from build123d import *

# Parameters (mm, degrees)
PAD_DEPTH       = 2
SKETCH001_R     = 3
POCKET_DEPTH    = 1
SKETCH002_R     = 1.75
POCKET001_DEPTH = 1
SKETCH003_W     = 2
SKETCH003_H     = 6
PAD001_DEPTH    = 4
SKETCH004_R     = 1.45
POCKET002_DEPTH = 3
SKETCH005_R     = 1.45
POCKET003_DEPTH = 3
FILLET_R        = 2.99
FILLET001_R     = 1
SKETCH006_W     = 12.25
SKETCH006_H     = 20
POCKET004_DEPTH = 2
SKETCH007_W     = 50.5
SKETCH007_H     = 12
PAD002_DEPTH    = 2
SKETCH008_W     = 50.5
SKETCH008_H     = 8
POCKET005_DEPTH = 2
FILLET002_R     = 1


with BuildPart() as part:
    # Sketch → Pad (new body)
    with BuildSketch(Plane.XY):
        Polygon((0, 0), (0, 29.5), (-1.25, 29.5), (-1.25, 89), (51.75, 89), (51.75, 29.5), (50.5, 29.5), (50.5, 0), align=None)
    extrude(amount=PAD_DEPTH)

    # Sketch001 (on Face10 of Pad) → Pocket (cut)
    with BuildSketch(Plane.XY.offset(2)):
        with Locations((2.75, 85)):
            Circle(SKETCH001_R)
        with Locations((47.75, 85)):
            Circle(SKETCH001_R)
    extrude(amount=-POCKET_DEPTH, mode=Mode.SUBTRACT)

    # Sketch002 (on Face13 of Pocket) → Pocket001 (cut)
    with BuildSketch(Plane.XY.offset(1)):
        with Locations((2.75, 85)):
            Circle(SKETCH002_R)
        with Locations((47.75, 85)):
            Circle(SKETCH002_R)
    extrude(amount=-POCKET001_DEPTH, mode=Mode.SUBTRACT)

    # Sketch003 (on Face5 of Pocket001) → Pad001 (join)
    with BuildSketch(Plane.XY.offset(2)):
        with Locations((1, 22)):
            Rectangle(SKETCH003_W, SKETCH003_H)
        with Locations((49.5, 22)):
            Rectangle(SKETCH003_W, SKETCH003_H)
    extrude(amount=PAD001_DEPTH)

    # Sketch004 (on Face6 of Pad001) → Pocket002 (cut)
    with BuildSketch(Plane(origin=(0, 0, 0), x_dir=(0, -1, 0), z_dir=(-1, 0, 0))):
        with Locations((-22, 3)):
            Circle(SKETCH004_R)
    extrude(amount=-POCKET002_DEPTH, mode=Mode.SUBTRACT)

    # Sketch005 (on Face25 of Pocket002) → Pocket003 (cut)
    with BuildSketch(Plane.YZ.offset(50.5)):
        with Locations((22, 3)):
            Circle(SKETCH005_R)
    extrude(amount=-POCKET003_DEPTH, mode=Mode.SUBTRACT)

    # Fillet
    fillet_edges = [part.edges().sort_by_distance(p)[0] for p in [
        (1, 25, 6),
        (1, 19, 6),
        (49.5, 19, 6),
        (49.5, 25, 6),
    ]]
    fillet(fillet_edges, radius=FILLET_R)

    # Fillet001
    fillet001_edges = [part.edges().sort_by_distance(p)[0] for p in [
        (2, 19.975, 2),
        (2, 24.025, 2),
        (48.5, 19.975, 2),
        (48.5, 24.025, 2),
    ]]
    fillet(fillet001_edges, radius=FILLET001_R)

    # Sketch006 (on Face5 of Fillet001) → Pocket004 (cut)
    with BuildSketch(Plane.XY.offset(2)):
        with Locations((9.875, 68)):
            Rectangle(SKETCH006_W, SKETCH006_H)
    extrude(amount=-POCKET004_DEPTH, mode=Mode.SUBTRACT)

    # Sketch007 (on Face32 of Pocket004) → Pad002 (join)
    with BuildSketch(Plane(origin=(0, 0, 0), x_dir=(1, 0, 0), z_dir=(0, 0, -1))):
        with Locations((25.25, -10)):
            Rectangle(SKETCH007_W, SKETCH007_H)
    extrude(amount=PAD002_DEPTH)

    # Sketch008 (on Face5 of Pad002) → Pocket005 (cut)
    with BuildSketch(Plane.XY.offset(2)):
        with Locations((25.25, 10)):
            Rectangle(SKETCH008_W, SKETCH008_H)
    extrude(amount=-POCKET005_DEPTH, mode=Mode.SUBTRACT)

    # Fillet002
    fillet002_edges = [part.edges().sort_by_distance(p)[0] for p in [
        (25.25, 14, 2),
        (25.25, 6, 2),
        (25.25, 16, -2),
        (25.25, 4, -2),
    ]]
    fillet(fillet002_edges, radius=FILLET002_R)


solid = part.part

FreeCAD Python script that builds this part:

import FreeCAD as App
import Part
import Sketcher
Q = App.Units.Quantity


def edges_at(feature, points):
    """Names of the edges that pass closest to the given points."""
    edges = feature.Shape.Edges
    near = lambda p: min(range(len(edges)), key=lambda i: edges[i].distToShape(Part.Vertex(*p))[0])
    return sorted({f"Edge{near(p) + 1}" for p in points})


def add_polygon(sketch, points):
    """Adds a closed chain of lines whose ends are joined by coincident constraints."""
    first, n = sketch.GeometryCount, len(points)
    for a, b in zip(points, points[1:] + points[:1]):
        sketch.addGeometry(Part.LineSegment(App.Vector(*a, 0), App.Vector(*b, 0)), False)
    for i in range(n):
        sketch.addConstraint(Sketcher.Constraint("Coincident", first + i, 2, first + (i + 1) % n, 1))

doc = App.newDocument("Part")
params = doc.addObject("Spreadsheet::Sheet", "Params")
for row, (alias, value) in enumerate([
    ("sketch1_width", "53 mm"),
    ("sketch1_width2", "50.5 mm"),
    ("sketch1_height", "29.5 mm"),
    ("sketch1_height2", "59.5 mm"),
    ("pad1_length", "2 mm"),
    ("sketch2_diameter", "6 mm"),
    ("pocket1_length", "1 mm"),
    ("sketch3_diameter", "3.5 mm"),
    ("pocket2_length", "1 mm"),
    ("sketch4_width", "2 mm"),
    ("sketch4_height", "6 mm"),
    ("pad2_length", "4 mm"),
    ("sketch5_diameter", "2.9 mm"),
    ("pocket3_length", "3 mm"),
    ("sketch6_diameter", "2.9 mm"),
    ("pocket4_length", "3 mm"),
    ("fillet_radius", "2.99 mm"),
    ("fillet2_radius", "1 mm"),
    ("sketch7_height", "20 mm"),
    ("sketch7_width", "12.25 mm"),
    ("pocket5_length", "2 mm"),
    ("sketch8_height", "12 mm"),
    ("sketch8_width", "50.5 mm"),
    ("pad3_length", "2 mm"),
    ("sketch9_height", "8 mm"),
    ("sketch9_width", "50.5 mm"),
    ("pocket6_length", "2 mm"),
    ("fillet3_radius", "1 mm"),
], start=1):
    params.set(f"A{row}", alias)
    params.set(f"B{row}", "=" + value)
    params.setAlias(f"B{row}", alias)

body = doc.addObject("PartDesign::Body", "Body")

# Sketch on XY plane
sketch1 = body.newObject("Sketcher::SketchObject", "Sketch")
sketch1.AttachmentSupport = (doc.getObject("XY_Plane"), [""])
sketch1.MapMode = "FlatFace"
add_polygon(sketch1, [(0, 29.5), (0, 0), (50.5, 0), (50.5, 29.5), (51.8, 29.5), (51.8, 89), (-1.2, 89), (-1.2, 29.5)])  # lines 0-7
sketch1.addConstraint(Sketcher.Constraint("Vertical", 0))
sketch1.addConstraint(Sketcher.Constraint("Horizontal", 1))
sketch1.addConstraint(Sketcher.Constraint("Vertical", 2))
sketch1.addConstraint(Sketcher.Constraint("Horizontal", 3))
sketch1.addConstraint(Sketcher.Constraint("Vertical", 4))
sketch1.addConstraint(Sketcher.Constraint("Horizontal", 5))
sketch1.addConstraint(Sketcher.Constraint("Vertical", 6))
sketch1.addConstraint(Sketcher.Constraint("Horizontal", 7))
sketch1.addConstraint(Sketcher.Constraint("Coincident", 0, 2, -1, 1))
sketch1.addConstraint(Sketcher.Constraint("Horizontal", 3, 2, 6, 2))
sketch1.addConstraint(Sketcher.Constraint("Equal", 3, 7))
sketch1.addConstraint(Sketcher.Constraint("DistanceX", 5, 2, 5, 1, Q("53 mm")))
sketch1.addConstraint(Sketcher.Constraint("DistanceX", 1, 1, 1, 2, Q("50.5 mm")))
sketch1.addConstraint(Sketcher.Constraint("DistanceY", 0, 2, 0, 1, Q("29.5 mm")))
sketch1.addConstraint(Sketcher.Constraint("DistanceY", 4, 1, 4, 2, Q("59.5 mm")))
sketch1.setExpression("Constraints[19]", "Params.sketch1_width")
sketch1.setExpression("Constraints[20]", "Params.sketch1_width2")
sketch1.setExpression("Constraints[21]", "Params.sketch1_height")
sketch1.setExpression("Constraints[22]", "Params.sketch1_height2")
pad1 = body.newObject("PartDesign::Pad", "Pad")
pad1.Profile = sketch1
pad1.setExpression("Length", "Params.pad1_length")

# Sketch on XY plane
sketch2 = body.newObject("Sketcher::SketchObject", "Sketch001")
sketch2.AttachmentSupport = (doc.getObject("XY_Plane"), [""])
sketch2.MapMode = "FlatFace"
sketch2.AttachmentOffset = App.Placement(App.Vector(0, 0, 2), App.Rotation())
sketch2.addGeometry(Part.Circle(App.Vector(2.8, 85, 0), App.Vector(0, 0, 1), 3), False)
sketch2.addGeometry(Part.Circle(App.Vector(47.8, 85, 0), App.Vector(0, 0, 1), 3), False)
sketch2.addConstraint(Sketcher.Constraint("Equal", 0, 1))
sketch2.addConstraint(Sketcher.Constraint("Horizontal", 0, 3, 1, 3))
sketch2.addConstraint(Sketcher.Constraint("Diameter", 0, Q("6 mm")))
sketch2.addConstraint(Sketcher.Constraint("DistanceY", -1, 1, 0, 3, Q("85 mm")))
sketch2.addConstraint(Sketcher.Constraint("DistanceX", 0, 3, 1, 3, Q("45 mm")))
sketch2.addConstraint(Sketcher.Constraint("DistanceX", -1, 1, 0, 3, Q("2.75 mm")))
sketch2.setExpression("Constraints[2]", "Params.sketch2_diameter")
pocket1 = body.newObject("PartDesign::Pocket", "Pocket")
pocket1.Profile = sketch2
pocket1.setExpression("Length", "Params.pocket1_length")

# Sketch on XY plane
sketch3 = body.newObject("Sketcher::SketchObject", "Sketch002")
sketch3.AttachmentSupport = (doc.getObject("XY_Plane"), [""])
sketch3.MapMode = "FlatFace"
sketch3.AttachmentOffset = App.Placement(App.Vector(0, 0, 1), App.Rotation())
sketch3.addGeometry(Part.Circle(App.Vector(2.8, 85, 0), App.Vector(0, 0, 1), 1.8), False)
sketch3.addGeometry(Part.Circle(App.Vector(47.8, 85, 0), App.Vector(0, 0, 1), 1.8), False)
sketch3.addConstraint(Sketcher.Constraint("Equal", 0, 1))
sketch3.addConstraint(Sketcher.Constraint("Horizontal", 0, 3, 1, 3))
sketch3.addConstraint(Sketcher.Constraint("Diameter", 0, Q("3.5 mm")))
sketch3.addConstraint(Sketcher.Constraint("DistanceY", -1, 1, 0, 3, Q("85 mm")))
sketch3.addConstraint(Sketcher.Constraint("DistanceX", 0, 3, 1, 3, Q("45 mm")))
sketch3.addConstraint(Sketcher.Constraint("DistanceX", -1, 1, 0, 3, Q("2.75 mm")))
sketch3.setExpression("Constraints[2]", "Params.sketch3_diameter")
pocket2 = body.newObject("PartDesign::Pocket", "Pocket001")
pocket2.Profile = sketch3
pocket2.setExpression("Length", "Params.pocket2_length")

# Sketch on XY plane
sketch4 = body.newObject("Sketcher::SketchObject", "Sketch003")
sketch4.AttachmentSupport = (doc.getObject("XY_Plane"), [""])
sketch4.MapMode = "FlatFace"
sketch4.AttachmentOffset = App.Placement(App.Vector(0, 0, 2), App.Rotation())
add_polygon(sketch4, [(0, 25), (0, 19), (2, 19), (2, 25)])  # lines 0-3
add_polygon(sketch4, [(48.5, 25), (48.5, 19), (50.5, 19), (50.5, 25)])  # lines 4-7
sketch4.addConstraint(Sketcher.Constraint("Vertical", 0))
sketch4.addConstraint(Sketcher.Constraint("Horizontal", 1))
sketch4.addConstraint(Sketcher.Constraint("Vertical", 2))
sketch4.addConstraint(Sketcher.Constraint("Horizontal", 3))
sketch4.addConstraint(Sketcher.Constraint("Vertical", 4))
sketch4.addConstraint(Sketcher.Constraint("Horizontal", 5))
sketch4.addConstraint(Sketcher.Constraint("Vertical", 6))
sketch4.addConstraint(Sketcher.Constraint("Horizontal", 7))
sketch4.addConstraint(Sketcher.Constraint("PointOnObject", 0, 2, -2))
sketch4.addConstraint(Sketcher.Constraint("Horizontal", 1, 2, 4, 2))
sketch4.addConstraint(Sketcher.Constraint("Horizontal", 3, 2, 6, 2))
sketch4.addConstraint(Sketcher.Constraint("Equal", 3, 5))
sketch4.addConstraint(Sketcher.Constraint("DistanceX", 1, 1, 1, 2, Q("2 mm")))
sketch4.addConstraint(Sketcher.Constraint("DistanceY", 0, 2, 0, 1, Q("6 mm")))
sketch4.addConstraint(Sketcher.Constraint("DistanceY", -1, 1, 0, 2, Q("19 mm")))
sketch4.addConstraint(Sketcher.Constraint("DistanceX", -1, 1, 4, 2, Q("48.5 mm")))
sketch4.setExpression("Constraints[20]", "Params.sketch4_width")
sketch4.setExpression("Constraints[21]", "Params.sketch4_height")
pad2 = body.newObject("PartDesign::Pad", "Pad001")
pad2.Profile = sketch4
pad2.setExpression("Length", "Params.pad2_length")

# Sketch on YZ plane
sketch5 = body.newObject("Sketcher::SketchObject", "Sketch004")
sketch5.AttachmentSupport = (doc.getObject("YZ_Plane"), [""])
sketch5.MapMode = "FlatFace"
sketch5.addGeometry(Part.Circle(App.Vector(22, 3, 0), App.Vector(0, 0, 1), 1.4), False)
sketch5.addConstraint(Sketcher.Constraint("Diameter", 0, Q("2.9 mm")))
sketch5.addConstraint(Sketcher.Constraint("DistanceX", -1, 1, 0, 3, Q("22 mm")))
sketch5.addConstraint(Sketcher.Constraint("DistanceY", -1, 1, 0, 3, Q("3 mm")))
sketch5.setExpression("Constraints[0]", "Params.sketch5_diameter")
pocket3 = body.newObject("PartDesign::Pocket", "Pocket002")
pocket3.Profile = sketch5
pocket3.setExpression("Length", "Params.pocket3_length")
pocket3.Reversed = True

# Sketch on YZ plane
sketch6 = body.newObject("Sketcher::SketchObject", "Sketch005")
sketch6.AttachmentSupport = (doc.getObject("YZ_Plane"), [""])
sketch6.MapMode = "FlatFace"
sketch6.AttachmentOffset = App.Placement(App.Vector(0, 0, 50.5), App.Rotation())
sketch6.addGeometry(Part.Circle(App.Vector(22, 3, 0), App.Vector(0, 0, 1), 1.4), False)
sketch6.addConstraint(Sketcher.Constraint("Diameter", 0, Q("2.9 mm")))
sketch6.addConstraint(Sketcher.Constraint("DistanceX", -1, 1, 0, 3, Q("22 mm")))
sketch6.addConstraint(Sketcher.Constraint("DistanceY", -1, 1, 0, 3, Q("3 mm")))
sketch6.setExpression("Constraints[0]", "Params.sketch6_diameter")
pocket4 = body.newObject("PartDesign::Pocket", "Pocket003")
pocket4.Profile = sketch6
pocket4.setExpression("Length", "Params.pocket4_length")
doc.recompute()

fillet = body.newObject("PartDesign::Fillet", "Fillet")
fillet.Base = (pocket4, edges_at(pocket4, [
    (1, 25, 6),
    (1, 19, 6),
    (49.5, 19, 6),
    (49.5, 25, 6),
]))
fillet.setExpression("Radius", "Params.fillet_radius")
doc.recompute()

fillet2 = body.newObject("PartDesign::Fillet", "Fillet001")
fillet2.Base = (fillet, edges_at(fillet, [
    (2, 19.975, 2),
    (2, 24.025, 2),
    (48.5, 19.975, 2),
    (48.5, 24.025, 2),
]))
fillet2.setExpression("Radius", "Params.fillet2_radius")

# Sketch on XY plane
sketch7 = body.newObject("Sketcher::SketchObject", "Sketch006")
sketch7.AttachmentSupport = (doc.getObject("XY_Plane"), [""])
sketch7.MapMode = "FlatFace"
sketch7.AttachmentOffset = App.Placement(App.Vector(0, 0, 2), App.Rotation())
add_polygon(sketch7, [(4, 78), (4, 58), (16, 58), (16, 78)])  # lines 0-3
sketch7.addConstraint(Sketcher.Constraint("Vertical", 0))
sketch7.addConstraint(Sketcher.Constraint("Horizontal", 1))
sketch7.addConstraint(Sketcher.Constraint("Vertical", 2))
sketch7.addConstraint(Sketcher.Constraint("Horizontal", 3))
sketch7.addConstraint(Sketcher.Constraint("DistanceY", 0, 2, 0, 1, Q("20 mm")))
sketch7.addConstraint(Sketcher.Constraint("DistanceY", -1, 1, 0, 2, Q("58 mm")))
sketch7.addConstraint(Sketcher.Constraint("DistanceX", -1, 1, 1, 2, Q("16 mm")))
sketch7.addConstraint(Sketcher.Constraint("DistanceX", 1, 1, 1, 2, Q("12.25 mm")))
sketch7.setExpression("Constraints[8]", "Params.sketch7_height")
sketch7.setExpression("Constraints[11]", "Params.sketch7_width")
pocket5 = body.newObject("PartDesign::Pocket", "Pocket004")
pocket5.Profile = sketch7
pocket5.setExpression("Length", "Params.pocket5_length")

# Sketch on XY plane
sketch8 = body.newObject("Sketcher::SketchObject", "Sketch007")
sketch8.AttachmentSupport = (doc.getObject("XY_Plane"), [""])
sketch8.MapMode = "FlatFace"
add_polygon(sketch8, [(0, 4), (0, 16), (50, 16), (50, 4)])  # lines 0-3
sketch8.addConstraint(Sketcher.Constraint("Vertical", 0))
sketch8.addConstraint(Sketcher.Constraint("Horizontal", 1))
sketch8.addConstraint(Sketcher.Constraint("Vertical", 2))
sketch8.addConstraint(Sketcher.Constraint("Horizontal", 3))
sketch8.addConstraint(Sketcher.Constraint("PointOnObject", 0, 2, -2))
sketch8.addConstraint(Sketcher.Constraint("DistanceY", 0, 1, 0, 2, Q("12 mm")))
sketch8.addConstraint(Sketcher.Constraint("DistanceX", 1, 1, 1, 2, Q("50.5 mm")))
sketch8.addConstraint(Sketcher.Constraint("DistanceY", -1, 1, 0, 2, Q("16 mm")))
sketch8.setExpression("Constraints[9]", "Params.sketch8_height")
sketch8.setExpression("Constraints[10]", "Params.sketch8_width")
pad3 = body.newObject("PartDesign::Pad", "Pad002")
pad3.Profile = sketch8
pad3.setExpression("Length", "Params.pad3_length")
pad3.Reversed = True

# Sketch on XY plane
sketch9 = body.newObject("Sketcher::SketchObject", "Sketch008")
sketch9.AttachmentSupport = (doc.getObject("XY_Plane"), [""])
sketch9.MapMode = "FlatFace"
sketch9.AttachmentOffset = App.Placement(App.Vector(0, 0, 2), App.Rotation())
add_polygon(sketch9, [(0, 14), (0, 6), (50, 6), (50, 14)])  # lines 0-3
sketch9.addConstraint(Sketcher.Constraint("Vertical", 0))
sketch9.addConstraint(Sketcher.Constraint("Horizontal", 1))
sketch9.addConstraint(Sketcher.Constraint("Vertical", 2))
sketch9.addConstraint(Sketcher.Constraint("Horizontal", 3))
sketch9.addConstraint(Sketcher.Constraint("PointOnObject", 0, 2, -2))
sketch9.addConstraint(Sketcher.Constraint("DistanceY", 0, 2, 0, 1, Q("8 mm")))
sketch9.addConstraint(Sketcher.Constraint("DistanceX", 1, 1, 1, 2, Q("50.5 mm")))
sketch9.addConstraint(Sketcher.Constraint("DistanceY", -1, 1, 0, 2, Q("6 mm")))
sketch9.setExpression("Constraints[9]", "Params.sketch9_height")
sketch9.setExpression("Constraints[10]", "Params.sketch9_width")
pocket6 = body.newObject("PartDesign::Pocket", "Pocket005")
pocket6.Profile = sketch9
pocket6.setExpression("Length", "Params.pocket6_length")
doc.recompute()

fillet3 = body.newObject("PartDesign::Fillet", "Fillet002")
fillet3.Base = (pocket6, edges_at(pocket6, [
    (25.25, 14, 2),
    (25.25, 6, 2),
    (25.25, 16, -2),
    (25.25, 4, -2),
]))
fillet3.setExpression("Radius", "Params.fillet3_radius")

doc.recompute()
